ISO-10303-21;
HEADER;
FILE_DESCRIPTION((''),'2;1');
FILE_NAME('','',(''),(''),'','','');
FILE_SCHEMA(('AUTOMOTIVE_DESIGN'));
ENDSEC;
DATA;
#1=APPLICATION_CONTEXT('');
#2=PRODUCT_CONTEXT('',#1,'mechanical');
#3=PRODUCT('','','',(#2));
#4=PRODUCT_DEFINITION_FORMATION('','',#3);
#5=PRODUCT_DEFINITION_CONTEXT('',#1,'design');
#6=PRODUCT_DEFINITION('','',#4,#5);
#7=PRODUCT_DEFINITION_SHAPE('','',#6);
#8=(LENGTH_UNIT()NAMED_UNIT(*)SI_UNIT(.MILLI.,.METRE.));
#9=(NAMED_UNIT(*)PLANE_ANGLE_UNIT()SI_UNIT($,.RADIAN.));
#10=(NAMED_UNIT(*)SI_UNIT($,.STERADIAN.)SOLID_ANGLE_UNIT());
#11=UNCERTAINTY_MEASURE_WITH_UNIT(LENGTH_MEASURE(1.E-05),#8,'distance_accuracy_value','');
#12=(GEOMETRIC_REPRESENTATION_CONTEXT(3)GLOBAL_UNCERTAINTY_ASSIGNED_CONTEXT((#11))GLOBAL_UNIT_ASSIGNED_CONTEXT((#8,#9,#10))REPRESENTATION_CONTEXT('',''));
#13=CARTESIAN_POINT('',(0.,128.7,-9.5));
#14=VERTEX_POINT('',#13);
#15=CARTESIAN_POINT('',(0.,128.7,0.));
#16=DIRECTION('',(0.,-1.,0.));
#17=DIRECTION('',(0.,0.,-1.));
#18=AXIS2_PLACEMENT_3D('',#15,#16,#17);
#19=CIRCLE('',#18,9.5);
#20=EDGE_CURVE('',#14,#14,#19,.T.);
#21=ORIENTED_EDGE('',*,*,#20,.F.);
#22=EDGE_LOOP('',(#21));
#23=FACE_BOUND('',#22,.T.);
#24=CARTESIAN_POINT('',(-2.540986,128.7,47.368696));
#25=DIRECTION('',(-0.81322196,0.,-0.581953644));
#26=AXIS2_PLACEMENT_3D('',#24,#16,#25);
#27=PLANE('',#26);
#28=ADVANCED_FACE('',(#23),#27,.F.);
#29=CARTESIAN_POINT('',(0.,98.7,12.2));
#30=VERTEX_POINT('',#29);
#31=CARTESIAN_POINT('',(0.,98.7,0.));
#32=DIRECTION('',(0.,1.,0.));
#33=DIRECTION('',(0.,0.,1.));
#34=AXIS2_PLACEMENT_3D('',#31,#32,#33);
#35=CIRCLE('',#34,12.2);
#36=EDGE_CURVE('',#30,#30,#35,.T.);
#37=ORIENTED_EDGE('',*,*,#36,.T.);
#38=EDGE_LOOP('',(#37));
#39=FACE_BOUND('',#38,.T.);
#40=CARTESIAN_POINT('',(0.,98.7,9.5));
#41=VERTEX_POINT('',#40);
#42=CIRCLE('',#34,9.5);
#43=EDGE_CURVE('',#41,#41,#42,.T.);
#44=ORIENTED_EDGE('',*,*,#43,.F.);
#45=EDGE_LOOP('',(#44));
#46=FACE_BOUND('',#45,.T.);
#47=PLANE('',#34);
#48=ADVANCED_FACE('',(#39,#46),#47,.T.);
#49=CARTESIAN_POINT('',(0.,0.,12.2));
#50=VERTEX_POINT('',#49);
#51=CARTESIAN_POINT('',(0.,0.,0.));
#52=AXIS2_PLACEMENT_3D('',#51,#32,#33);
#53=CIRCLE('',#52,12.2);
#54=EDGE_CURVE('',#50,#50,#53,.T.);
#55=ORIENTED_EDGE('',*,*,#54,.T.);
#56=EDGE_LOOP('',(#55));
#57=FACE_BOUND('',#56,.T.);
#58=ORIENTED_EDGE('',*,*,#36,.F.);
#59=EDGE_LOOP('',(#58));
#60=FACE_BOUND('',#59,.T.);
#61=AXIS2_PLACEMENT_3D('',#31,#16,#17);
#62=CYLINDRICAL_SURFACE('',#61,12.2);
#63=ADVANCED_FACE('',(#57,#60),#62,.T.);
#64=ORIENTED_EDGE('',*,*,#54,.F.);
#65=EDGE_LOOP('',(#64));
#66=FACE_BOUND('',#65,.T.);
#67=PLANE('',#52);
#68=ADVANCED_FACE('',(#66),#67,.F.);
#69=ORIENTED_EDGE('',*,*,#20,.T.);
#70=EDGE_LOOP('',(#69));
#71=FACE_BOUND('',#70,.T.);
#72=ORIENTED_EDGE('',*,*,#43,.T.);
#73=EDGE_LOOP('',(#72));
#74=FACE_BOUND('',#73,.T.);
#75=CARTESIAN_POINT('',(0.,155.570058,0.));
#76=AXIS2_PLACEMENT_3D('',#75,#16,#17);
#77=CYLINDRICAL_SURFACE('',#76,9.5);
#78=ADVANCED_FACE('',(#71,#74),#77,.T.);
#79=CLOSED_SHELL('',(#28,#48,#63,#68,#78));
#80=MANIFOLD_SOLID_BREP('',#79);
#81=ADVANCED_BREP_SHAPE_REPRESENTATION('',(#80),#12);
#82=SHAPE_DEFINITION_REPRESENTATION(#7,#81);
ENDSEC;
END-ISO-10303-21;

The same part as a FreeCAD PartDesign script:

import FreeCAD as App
import Part
import Sketcher
Q = App.Units.Quantity

doc = App.newDocument("Part")
body = doc.addObject("PartDesign::Body", "Body")

sketch1 = body.newObject("Sketcher::SketchObject", "Sketch")
sketch1.AttachmentSupport = (doc.getObject("XZ_Plane"), [""])
sketch1.MapMode = "FlatFace"
sketch1.addGeometry(Part.Circle(App.Vector(0, 0, 0), App.Vector(0, 0, 1), 12), False)
sketch1.addConstraint(Sketcher.Constraint("Coincident", 0, 3, -1, 1))
sketch1.addConstraint(Sketcher.Constraint("Diameter", 0, Q("24.4 mm")))
pad1 = body.newObject("PartDesign::Pad", "Pad")
pad1.Profile = sketch1
pad1.Length = 98.7
pad1.Reversed = True

sketch2 = body.newObject("Sketcher::SketchObject", "Sketch001")
sketch2.AttachmentSupport = (doc.getObject("XZ_Plane"), [""])
sketch2.MapMode = "FlatFace"
sketch2.AttachmentOffset = App.Placement(App.Vector(0, 0, -98.7), App.Rotation())
sketch2.addGeometry(Part.Circle(App.Vector(0, 0, 0), App.Vector(0, 0, 1), 10), False)
sketch2.addConstraint(Sketcher.Constraint("Coincident", 0, 3, -1, 1))
sketch2.addConstraint(Sketcher.Constraint("Diameter", 0, Q("19 mm")))
pad2 = body.newObject("PartDesign::Pad", "Pad001")
pad2.Profile = sketch2
pad2.Length = 30
pad2.Reversed = True

doc.recompute()
